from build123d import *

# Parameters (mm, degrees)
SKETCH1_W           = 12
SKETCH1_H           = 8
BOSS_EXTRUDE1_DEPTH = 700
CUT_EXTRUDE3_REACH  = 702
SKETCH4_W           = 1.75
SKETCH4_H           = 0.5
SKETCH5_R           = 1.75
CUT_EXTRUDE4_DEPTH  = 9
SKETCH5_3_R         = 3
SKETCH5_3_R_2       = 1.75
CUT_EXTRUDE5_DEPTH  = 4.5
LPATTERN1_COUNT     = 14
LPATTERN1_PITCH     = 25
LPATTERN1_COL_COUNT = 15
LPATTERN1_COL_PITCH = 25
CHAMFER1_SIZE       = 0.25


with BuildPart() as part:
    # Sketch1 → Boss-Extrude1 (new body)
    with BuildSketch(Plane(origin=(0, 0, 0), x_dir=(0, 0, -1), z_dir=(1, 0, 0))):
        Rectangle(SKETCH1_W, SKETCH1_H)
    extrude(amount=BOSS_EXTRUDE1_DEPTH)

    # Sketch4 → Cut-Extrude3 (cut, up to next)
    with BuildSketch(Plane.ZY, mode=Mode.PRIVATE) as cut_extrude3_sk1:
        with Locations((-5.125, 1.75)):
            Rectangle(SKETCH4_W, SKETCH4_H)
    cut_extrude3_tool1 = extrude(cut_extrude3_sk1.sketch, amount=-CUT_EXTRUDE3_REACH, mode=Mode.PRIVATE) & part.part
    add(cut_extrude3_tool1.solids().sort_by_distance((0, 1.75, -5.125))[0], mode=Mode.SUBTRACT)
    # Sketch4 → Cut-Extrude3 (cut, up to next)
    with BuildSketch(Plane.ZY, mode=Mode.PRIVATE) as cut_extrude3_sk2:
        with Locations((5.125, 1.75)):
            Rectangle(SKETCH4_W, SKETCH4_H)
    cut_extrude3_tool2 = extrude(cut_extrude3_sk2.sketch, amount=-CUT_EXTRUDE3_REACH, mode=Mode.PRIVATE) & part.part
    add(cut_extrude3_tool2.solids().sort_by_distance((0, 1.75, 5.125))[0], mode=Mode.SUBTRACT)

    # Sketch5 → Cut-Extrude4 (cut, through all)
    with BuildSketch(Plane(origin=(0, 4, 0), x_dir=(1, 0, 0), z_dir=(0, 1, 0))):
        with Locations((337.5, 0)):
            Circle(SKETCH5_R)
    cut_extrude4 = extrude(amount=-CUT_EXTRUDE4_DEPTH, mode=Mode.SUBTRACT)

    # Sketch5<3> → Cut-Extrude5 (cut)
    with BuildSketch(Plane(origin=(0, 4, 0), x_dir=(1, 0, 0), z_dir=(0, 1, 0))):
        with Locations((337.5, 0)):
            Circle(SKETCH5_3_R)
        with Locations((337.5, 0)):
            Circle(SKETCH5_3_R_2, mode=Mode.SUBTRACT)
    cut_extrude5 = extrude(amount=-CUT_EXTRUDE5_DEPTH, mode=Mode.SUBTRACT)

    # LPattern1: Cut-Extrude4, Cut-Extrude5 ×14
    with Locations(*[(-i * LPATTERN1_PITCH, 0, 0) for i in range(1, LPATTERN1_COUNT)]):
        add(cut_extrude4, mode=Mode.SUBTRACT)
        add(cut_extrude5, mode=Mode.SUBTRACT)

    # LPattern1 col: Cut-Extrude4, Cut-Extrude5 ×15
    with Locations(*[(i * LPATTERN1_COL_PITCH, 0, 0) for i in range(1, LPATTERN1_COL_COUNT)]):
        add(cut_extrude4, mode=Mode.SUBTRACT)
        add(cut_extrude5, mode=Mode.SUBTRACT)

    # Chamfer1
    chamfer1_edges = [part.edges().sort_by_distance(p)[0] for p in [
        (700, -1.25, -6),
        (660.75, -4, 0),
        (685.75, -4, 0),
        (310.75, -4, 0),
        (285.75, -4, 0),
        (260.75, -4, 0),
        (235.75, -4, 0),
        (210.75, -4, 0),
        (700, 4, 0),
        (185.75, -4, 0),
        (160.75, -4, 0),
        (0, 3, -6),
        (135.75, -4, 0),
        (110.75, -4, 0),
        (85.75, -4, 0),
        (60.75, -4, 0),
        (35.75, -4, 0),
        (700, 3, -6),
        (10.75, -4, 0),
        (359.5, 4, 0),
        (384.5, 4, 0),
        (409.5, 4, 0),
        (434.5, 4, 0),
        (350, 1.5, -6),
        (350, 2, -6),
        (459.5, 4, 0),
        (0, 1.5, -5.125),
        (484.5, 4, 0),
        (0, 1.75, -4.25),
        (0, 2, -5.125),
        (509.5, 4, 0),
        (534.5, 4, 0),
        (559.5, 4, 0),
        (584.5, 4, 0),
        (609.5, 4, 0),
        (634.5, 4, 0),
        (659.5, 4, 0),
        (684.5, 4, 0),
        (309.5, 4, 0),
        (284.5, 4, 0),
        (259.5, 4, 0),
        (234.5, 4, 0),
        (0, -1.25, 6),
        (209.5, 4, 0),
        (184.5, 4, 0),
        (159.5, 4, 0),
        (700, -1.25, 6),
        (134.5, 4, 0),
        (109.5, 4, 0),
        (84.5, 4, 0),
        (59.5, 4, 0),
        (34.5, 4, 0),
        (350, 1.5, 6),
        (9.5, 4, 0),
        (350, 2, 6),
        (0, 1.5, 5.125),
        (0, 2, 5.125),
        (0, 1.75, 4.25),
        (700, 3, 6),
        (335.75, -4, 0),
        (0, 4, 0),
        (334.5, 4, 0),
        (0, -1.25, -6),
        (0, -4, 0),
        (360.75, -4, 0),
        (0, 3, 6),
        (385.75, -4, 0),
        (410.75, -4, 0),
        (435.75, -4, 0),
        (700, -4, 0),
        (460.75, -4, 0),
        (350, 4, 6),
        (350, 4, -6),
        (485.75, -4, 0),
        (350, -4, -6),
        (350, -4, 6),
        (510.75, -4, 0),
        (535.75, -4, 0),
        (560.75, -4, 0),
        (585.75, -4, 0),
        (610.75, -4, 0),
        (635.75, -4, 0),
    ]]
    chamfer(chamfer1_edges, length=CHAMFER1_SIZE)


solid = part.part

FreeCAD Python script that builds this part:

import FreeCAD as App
import Part
import Sketcher
from FreeCAD import Vector


def edges_at(feature, points):
    """Names of the edges that pass closest to the given points."""
    edges = feature.Shape.Edges
    near = lambda p: min(range(len(edges)), key=lambda i: edges[i].distToShape(Part.Vertex(*p))[0])
    return sorted({f"Edge{near(p) + 1}" for p in points})


def add_polygon(sketch, points):
    """Adds a closed chain of lines whose ends are joined by coincident constraints."""
    first, n = sketch.GeometryCount, len(points)
    for a, b in zip(points, points[1:] + points[:1]):
        sketch.addGeometry(Part.LineSegment(App.Vector(*a, 0), App.Vector(*b, 0)), False)
    for i in range(n):
        sketch.addConstraint(Sketcher.Constraint("Coincident", first + i, 2, first + (i + 1) % n, 1))

doc = App.newDocument("Part")
body = doc.addObject("PartDesign::Body", "Body")

# Sketch on YZ plane
sketch1 = body.newObject("Sketcher::SketchObject", "Sketch")
sketch1.AttachmentSupport = (doc.getObject("YZ_Plane"), [""])
sketch1.MapMode = "FlatFace"
add_polygon(sketch1, [(4, 6), (-4, 6), (-4, -6), (4, -6)])  # lines 0-3
sketch1.addConstraint(Sketcher.Constraint("Horizontal", 0))
sketch1.addConstraint(Sketcher.Constraint("Vertical", 1))
sketch1.addConstraint(Sketcher.Constraint("Horizontal", 2))
sketch1.addConstraint(Sketcher.Constraint("Vertical", 3))
sketch1.addConstraint(Sketcher.Constraint("Symmetric", 0, 2, 2, 2, -1, 1))
sketch1.addConstraint(Sketcher.Constraint("DistanceX", 0, 2, 0, 1, 8.0))
sketch1.addConstraint(Sketcher.Constraint("DistanceY", 1, 2, 1, 1, 12.0))
pad1 = body.newObject("PartDesign::Pad", "Pad")
pad1.Profile = sketch1
pad1.Length = 700

# Sketch on YZ plane
sketch2 = body.newObject("Sketcher::SketchObject", "Sketch001")
sketch2.AttachmentSupport = (doc.getObject("YZ_Plane"), [""])
sketch2.MapMode = "FlatFace"
add_polygon(sketch2, [(2, -6), (1.5, -6), (1.5, -4.2), (2, -4.2)])  # lines 0-3
sketch2.addConstraint(Sketcher.Constraint("Horizontal", 0))
sketch2.addConstraint(Sketcher.Constraint("Vertical", 1))
sketch2.addConstraint(Sketcher.Constraint("Horizontal", 2))
sketch2.addConstraint(Sketcher.Constraint("Vertical", 3))
sketch2.addConstraint(Sketcher.Constraint("DistanceX", 0, 2, 0, 1, 0.5))
sketch2.addConstraint(Sketcher.Constraint("DistanceY", 0, 2, -1, 1, 6.0))
sketch2.addConstraint(Sketcher.Constraint("DistanceX", -1, 1, 2, 2, 2.0))
sketch2.addConstraint(Sketcher.Constraint("DistanceY", 1, 1, 1, 2, 1.75))
pocket1 = body.newObject("PartDesign::Pocket", "Pocket")
pocket1.Profile = sketch2
pocket1.Type = "UpToFirst"
pocket1.Reversed = True

# Sketch on YZ plane
sketch3 = body.newObject("Sketcher::SketchObject", "Sketch002")
sketch3.AttachmentSupport = (doc.getObject("YZ_Plane"), [""])
sketch3.MapMode = "FlatFace"
add_polygon(sketch3, [(2, 4.2), (1.5, 4.2), (1.5, 6), (2, 6)])  # lines 0-3
sketch3.addConstraint(Sketcher.Constraint("Horizontal", 0))
sketch3.addConstraint(Sketcher.Constraint("Vertical", 1))
sketch3.addConstraint(Sketcher.Constraint("Horizontal", 2))
sketch3.addConstraint(Sketcher.Constraint("Vertical", 3))
sketch3.addConstraint(Sketcher.Constraint("DistanceX", 0, 2, 0, 1, 0.5))
sketch3.addConstraint(Sketcher.Constraint("DistanceY", -1, 1, 1, 2, 6.0))
sketch3.addConstraint(Sketcher.Constraint("DistanceX", -1, 1, 2, 2, 2.0))
sketch3.addConstraint(Sketcher.Constraint("DistanceY", 1, 1, 1, 2, 1.75))
pocket2 = body.newObject("PartDesign::Pocket", "Pocket001")
pocket2.Profile = sketch3
pocket2.Type = "UpToFirst"
pocket2.Reversed = True

# Sketch on XZ plane
sketch4 = body.newObject("Sketcher::SketchObject", "Sketch003")
sketch4.AttachmentSupport = (doc.getObject("XZ_Plane"), [""])
sketch4.MapMode = "FlatFace"
sketch4.AttachmentOffset = App.Placement(Vector(0, 0, -4), App.Rotation())
sketch4.addGeometry(Part.Circle(Vector(337.5, 0, 0), Vector(0, 0, 1), 1.8), False)
sketch4.addConstraint(Sketcher.Constraint("PointOnObject", 0, 3, -1))
sketch4.addConstraint(Sketcher.Constraint("Diameter", 0, 3.5))
sketch4.addConstraint(Sketcher.Constraint("DistanceX", -1, 1, 0, 3, 337.5))
pocket3 = body.newObject("PartDesign::Pocket", "Pocket002")
pocket3.Profile = sketch4
pocket3.Type = "ThroughAll"
pocket3.Reversed = True

# Sketch on XZ plane
sketch5 = body.newObject("Sketcher::SketchObject", "Sketch004")
sketch5.AttachmentSupport = (doc.getObject("XZ_Plane"), [""])
sketch5.MapMode = "FlatFace"
sketch5.AttachmentOffset = App.Placement(Vector(0, 0, -4), App.Rotation())
sketch5.addGeometry(Part.Circle(Vector(337.5, 0, 0), Vector(0, 0, 1), 3), False)
sketch5.addGeometry(Part.Circle(Vector(337.5, 0, 0), Vector(0, 0, 1), 1.8), False)
sketch5.addConstraint(Sketcher.Constraint("Coincident", 1, 3, 0, 3))
sketch5.addConstraint(Sketcher.Constraint("PointOnObject", 0, 3, -1))
sketch5.addConstraint(Sketcher.Constraint("Diameter", 0, 6.0))
sketch5.addConstraint(Sketcher.Constraint("Diameter", 1, 3.5))
sketch5.addConstraint(Sketcher.Constraint("DistanceX", -1, 1, 0, 3, 337.5))
pocket4 = body.newObject("PartDesign::Pocket", "Pocket003")
pocket4.Profile = sketch5
pocket4.Length = 4.5
pocket4.Reversed = True
doc.recompute()

linearpattern = body.newObject("PartDesign::LinearPattern", "LinearPattern")
linearpattern.Originals = [pocket3, pocket4]
linearpattern.Direction = (doc.getObject("X_Axis"), [""])
linearpattern.Mode = "offset"
linearpattern.Offset = 25
linearpattern.Occurrences = 14
linearpattern.Reversed = True
body.Tip = linearpattern
doc.recompute()

linearpattern2 = body.newObject("PartDesign::LinearPattern", "LinearPattern001")
linearpattern2.Originals = [pocket3, pocket4]
linearpattern2.Direction = (doc.getObject("X_Axis"), [""])
linearpattern2.Mode = "offset"
linearpattern2.Offset = 25
linearpattern2.Occurrences = 15
body.Tip = linearpattern2
doc.recompute()

chamfer = body.newObject("PartDesign::Chamfer", "Chamfer")
chamfer.Base = (linearpattern2, edges_at(linearpattern2, [
    (700, -1.25, -6),
    (660.75, -4, 0),
    (685.75, -4, 0),
    (310.75, -4, 0),
    (285.75, -4, 0),
    (260.75, -4, 0),
    (235.75, -4, 0),
    (210.75, -4, 0),
    (700, 4, 0),
    (185.75, -4, 0),
    (160.75, -4, 0),
    (0, 3, -6),
    (135.75, -4, 0),
    (110.75, -4, 0),
    (85.75, -4, 0),
    (60.75, -4, 0),
    (35.75, -4, 0),
    (700, 3, -6),
    (10.75, -4, 0),
    (359.5, 4, 0),
    (384.5, 4, 0),
    (409.5, 4, 0),
    (434.5, 4, 0),
    (350, 1.5, -6),
    (350, 2, -6),
    (459.5, 4, 0),
    (0, 1.5, -5.125),
    (484.5, 4, 0),
    (0, 1.75, -4.25),
    (0, 2, -5.125),
    (509.5, 4, 0),
    (534.5, 4, 0),
    (559.5, 4, 0),
    (584.5, 4, 0),
    (609.5, 4, 0),
    (634.5, 4, 0),
    (659.5, 4, 0),
    (684.5, 4, 0),
    (309.5, 4, 0),
    (284.5, 4, 0),
    (259.5, 4, 0),
    (234.5, 4, 0),
    (0, -1.25, 6),
    (209.5, 4, 0),
    (184.5, 4, 0),
    (159.5, 4, 0),
    (700, -1.25, 6),
    (134.5, 4, 0),
    (109.5, 4, 0),
    (84.5, 4, 0),
    (59.5, 4, 0),
    (34.5, 4, 0),
    (350, 1.5, 6),
    (9.5, 4, 0),
    (350, 2, 6),
    (0, 1.5, 5.125),
    (0, 2, 5.125),
    (0, 1.75, 4.25),
    (700, 3, 6),
    (335.75, -4, 0),
    (0, 4, 0),
    (334.5, 4, 0),
    (0, -1.25, -6),
    (0, -4, 0),
    (360.75, -4, 0),
    (0, 3, 6),
    (385.75, -4, 0),
    (410.75, -4, 0),
    (435.75, -4, 0),
    (700, -4, 0),
    (460.75, -4, 0),
    (350, 4, 6),
    (350, 4, -6),
    (485.75, -4, 0),
    (350, -4, -6),
    (350, -4, 6),
    (510.75, -4, 0),
    (535.75, -4, 0),
    (560.75, -4, 0),
    (585.75, -4, 0),
    (610.75, -4, 0),
    (635.75, -4, 0),
]))
chamfer.Size = 0.25

doc.recompute()
